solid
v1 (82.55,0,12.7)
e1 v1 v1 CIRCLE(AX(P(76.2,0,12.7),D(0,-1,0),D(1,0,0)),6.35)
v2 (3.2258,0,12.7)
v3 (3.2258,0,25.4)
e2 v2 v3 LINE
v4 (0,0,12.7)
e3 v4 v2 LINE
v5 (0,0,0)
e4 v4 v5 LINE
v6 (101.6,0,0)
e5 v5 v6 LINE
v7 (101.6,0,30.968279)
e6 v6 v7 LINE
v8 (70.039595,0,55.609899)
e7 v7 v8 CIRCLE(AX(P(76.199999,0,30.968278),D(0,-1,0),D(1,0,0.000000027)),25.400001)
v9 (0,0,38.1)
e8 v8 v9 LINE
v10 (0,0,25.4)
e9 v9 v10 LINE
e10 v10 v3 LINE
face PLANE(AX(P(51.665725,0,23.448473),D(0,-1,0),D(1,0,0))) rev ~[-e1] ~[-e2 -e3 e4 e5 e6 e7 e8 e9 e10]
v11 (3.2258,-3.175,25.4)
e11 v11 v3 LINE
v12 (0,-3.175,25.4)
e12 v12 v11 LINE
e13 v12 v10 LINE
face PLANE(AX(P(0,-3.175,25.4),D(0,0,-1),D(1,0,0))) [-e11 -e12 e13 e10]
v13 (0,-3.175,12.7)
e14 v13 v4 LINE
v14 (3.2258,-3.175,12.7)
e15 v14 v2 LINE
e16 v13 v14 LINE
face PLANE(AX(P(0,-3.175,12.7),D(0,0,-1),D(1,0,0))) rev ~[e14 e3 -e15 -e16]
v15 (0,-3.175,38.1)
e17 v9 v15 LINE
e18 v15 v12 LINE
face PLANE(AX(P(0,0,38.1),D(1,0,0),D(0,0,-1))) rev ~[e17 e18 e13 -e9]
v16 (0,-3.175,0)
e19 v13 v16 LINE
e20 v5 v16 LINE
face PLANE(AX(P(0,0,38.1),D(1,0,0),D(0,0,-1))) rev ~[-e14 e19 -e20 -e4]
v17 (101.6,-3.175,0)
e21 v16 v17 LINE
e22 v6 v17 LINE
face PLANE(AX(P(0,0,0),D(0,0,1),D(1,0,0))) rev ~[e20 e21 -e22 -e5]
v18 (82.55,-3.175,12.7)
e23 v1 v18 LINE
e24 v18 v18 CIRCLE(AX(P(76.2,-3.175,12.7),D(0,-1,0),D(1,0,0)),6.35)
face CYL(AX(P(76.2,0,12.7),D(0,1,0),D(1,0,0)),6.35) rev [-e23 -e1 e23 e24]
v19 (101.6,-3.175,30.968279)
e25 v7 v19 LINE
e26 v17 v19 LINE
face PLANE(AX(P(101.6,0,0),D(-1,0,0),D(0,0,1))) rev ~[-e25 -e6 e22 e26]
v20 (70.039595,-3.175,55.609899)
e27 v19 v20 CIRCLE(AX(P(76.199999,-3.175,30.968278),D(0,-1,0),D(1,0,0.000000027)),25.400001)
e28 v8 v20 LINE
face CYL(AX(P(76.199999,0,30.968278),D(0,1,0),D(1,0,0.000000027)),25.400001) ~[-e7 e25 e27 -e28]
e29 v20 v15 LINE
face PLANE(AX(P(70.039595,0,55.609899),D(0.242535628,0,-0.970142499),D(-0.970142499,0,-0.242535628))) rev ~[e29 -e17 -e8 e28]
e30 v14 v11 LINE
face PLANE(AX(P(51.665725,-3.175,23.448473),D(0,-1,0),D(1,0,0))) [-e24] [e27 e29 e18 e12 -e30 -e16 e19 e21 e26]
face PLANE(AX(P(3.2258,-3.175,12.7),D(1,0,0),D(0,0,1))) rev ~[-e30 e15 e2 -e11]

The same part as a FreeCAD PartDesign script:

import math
import FreeCAD as App
import Part
import Sketcher

V = App.Vector
Q = App.Units.Quantity


def add_polygon(sketch, points):
    """Adds a closed chain of lines whose ends are joined by coincident constraints."""
    first, n = sketch.GeometryCount, len(points)
    for a, b in zip(points, points[1:] + points[:1]):
        sketch.addGeometry(Part.LineSegment(App.Vector(*a, 0), App.Vector(*b, 0)), False)
    for i in range(n):
        sketch.addConstraint(Sketcher.Constraint("Coincident", first + i, 2, first + (i + 1) % n, 1))

doc = App.newDocument("Part")
params = doc.addObject("Spreadsheet::Sheet", "Params")
for row, (alias, value) in enumerate([
    ("sketch1_radius", "1 in"),
    ("sketch1_diameter", "0.5 in"),
    ("sketch1_width", "4 in"),
    ("sketch1_height", "1.5 in"),
    ("pad1_length", "0.125 in"),
    ("sketch2_height", "0.5 in"),
    ("sketch2_width", "0.127 in"),
    ("pocket1_length", "0.125 in"),
], start=1):
    params.set(f"A{row}", alias)
    params.set(f"B{row}", "=" + value)
    params.setAlias(f"B{row}", alias)

body = doc.addObject("PartDesign::Body", "Body")

# Sketch on XZ plane
sketch1 = body.newObject("Sketcher::SketchObject", "Sketch")
sketch1.AttachmentSupport = (doc.getObject("XZ_Plane"), [""])
sketch1.MapMode = "FlatFace"
sketch1.addGeometry([
    Part.LineSegment(V(0, 38, 0), V(0, 0, 0)),  # 0
    Part.LineSegment(V(0, 0, 0), V(102, 0, 0)),  # 1
    Part.LineSegment(V(102, 0, 0), V(102, 31, 0)),  # 2
    Part.ArcOfCircle(Part.Circle(V(76, 31, 0), V(0, 0, 1), 25), math.radians(0), math.radians(104)),  # 3
    Part.LineSegment(V(70, 56, 0), V(0, 38, 0)),  # 4
    Part.Circle(V(76, 13, 0), V(0, 0, 1), 6),  # 5
], False)
sketch1.addConstraint([
    Sketcher.Constraint("Coincident", 0, 2, 1, 1),
    Sketcher.Constraint("Coincident", 1, 2, 2, 1),
    Sketcher.Constraint("Tangent", 2, 2, 3, 1),
    Sketcher.Constraint("Tangent", 3, 2, 4, 1),
    Sketcher.Constraint("Coincident", 4, 2, 0, 1),
    Sketcher.Constraint("Vertical", 0),
    Sketcher.Constraint("Horizontal", 1),
    Sketcher.Constraint("Vertical", 2),
    Sketcher.Constraint("Coincident", 0, 2, -1, 1),
    Sketcher.Constraint("Vertical", 3, 3, 5, 3),
    Sketcher.Constraint("Radius", 3, Q("1 in")),
    Sketcher.Constraint("Diameter", 5, Q("0.5 in")),
    Sketcher.Constraint("DistanceX", 1, 1, 1, 2, Q("4 in")),
    Sketcher.Constraint("DistanceY", 0, 2, 0, 1, Q("1.5 in")),
    Sketcher.Constraint("DistanceY", 5, 3, 4, 2, Q("1 in")),
    Sketcher.Constraint("DistanceY", 2, 1, 2, 2, 30.968279),
])
sketch1.setExpression("Constraints[10]", "Params.sketch1_radius")
sketch1.setExpression("Constraints[11]", "Params.sketch1_diameter")
sketch1.setExpression("Constraints[12]", "Params.sketch1_width")
sketch1.setExpression("Constraints[13]", "Params.sketch1_height")
pad1 = body.newObject("PartDesign::Pad", "Pad")
pad1.Profile = sketch1
pad1.setExpression("Length", "Params.pad1_length")

# Sketch on XZ plane
sketch2 = body.newObject("Sketcher::SketchObject", "Sketch001")
sketch2.AttachmentSupport = (doc.getObject("XZ_Plane"), [""])
sketch2.MapMode = "FlatFace"
sketch2.AttachmentOffset = App.Placement(V(0, 0, 0.125 * 25.4), App.Rotation())
add_polygon(sketch2, [(0, 25.4), (0, 12.7), (3.2, 12.7), (3.2, 25.4)])  # lines 0-3
sketch2.addConstraint([
    Sketcher.Constraint("Vertical", 0),
    Sketcher.Constraint("Horizontal", 1),
    Sketcher.Constraint("Vertical", 2),
    Sketcher.Constraint("Horizontal", 3),
    Sketcher.Constraint("PointOnObject", 0, 2, -2),
    Sketcher.Constraint("DistanceY", 0, 2, 0, 1, Q("0.5 in")),
    Sketcher.Constraint("DistanceY", -1, 1, 2, 2, Q("1 in")),
    Sketcher.Constraint("DistanceX", 1, 1, 1, 2, Q("0.127 in")),
])
sketch2.setExpression("Constraints[9]", "Params.sketch2_height")
sketch2.setExpression("Constraints[11]", "Params.sketch2_width")
pocket1 = body.newObject("PartDesign::Pocket", "Pocket")
pocket1.Profile = sketch2
pocket1.setExpression("Length", "Params.pocket1_length")

doc.recompute()
